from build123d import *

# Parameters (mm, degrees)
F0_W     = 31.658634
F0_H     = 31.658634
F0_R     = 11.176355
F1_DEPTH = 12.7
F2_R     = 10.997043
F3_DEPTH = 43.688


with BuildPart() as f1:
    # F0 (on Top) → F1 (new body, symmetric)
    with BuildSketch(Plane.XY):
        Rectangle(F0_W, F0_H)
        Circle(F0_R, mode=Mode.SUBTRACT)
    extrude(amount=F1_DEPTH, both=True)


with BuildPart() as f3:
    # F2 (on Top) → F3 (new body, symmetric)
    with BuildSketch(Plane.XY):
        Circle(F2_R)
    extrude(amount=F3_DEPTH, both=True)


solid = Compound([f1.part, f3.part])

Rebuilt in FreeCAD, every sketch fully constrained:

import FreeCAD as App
import Part
import Sketcher

V = App.Vector


def add_polygon(sketch, points):
    """Adds a closed chain of lines whose ends are joined by coincident constraints."""
    first, n = sketch.GeometryCount, len(points)
    for a, b in zip(points, points[1:] + points[:1]):
        sketch.addGeometry(Part.LineSegment(App.Vector(*a, 0), App.Vector(*b, 0)), False)
    for i in range(n):
        sketch.addConstraint(Sketcher.Constraint("Coincident", first + i, 2, first + (i + 1) % n, 1))

doc = App.newDocument("Part")
params = doc.addObject("Spreadsheet::Sheet", "Params")
for row, (alias, value) in enumerate([
    ("pad1_length", "1 in"),
    ("pad2_length", "3.44 in"),
], start=1):
    params.set(f"A{row}", alias)
    params.set(f"B{row}", "=" + value)
    params.setAlias(f"B{row}", alias)

body = doc.addObject("PartDesign::Body", "Body")

# Sketch on XY plane
sketch1 = body.newObject("Sketcher::SketchObject", "Sketch")
sketch1.AttachmentSupport = (doc.getObject("XY_Plane"), [""])
sketch1.MapMode = "FlatFace"
add_polygon(sketch1, [(-16, 16), (-16, -16), (16, -16), (16, 16)])  # lines 0-3
sketch1.addGeometry(Part.Circle(V(0, 0, 0), V(0, 0, 1), 11), False)  # 4
sketch1.addConstraint([
    Sketcher.Constraint("Vertical", 0),
    Sketcher.Constraint("Horizontal", 1),
    Sketcher.Constraint("Vertical", 2),
    Sketcher.Constraint("Horizontal", 3),
    Sketcher.Constraint("Coincident", 4, 3, -1, 1),
    Sketcher.Constraint("Symmetric", 0, 2, 2, 2, -1, 1),
    Sketcher.Constraint("Equal", 3, 0),
    Sketcher.Constraint("Diameter", 4, 22.35271),
    Sketcher.Constraint("DistanceX", 1, 1, 1, 2, 31.658634),
])
pad1 = body.newObject("PartDesign::Pad", "Pad")
pad1.Profile = sketch1
pad1.setExpression("Length", "Params.pad1_length")
pad1.Midplane = True
body2 = doc.addObject("PartDesign::Body", "Body001")

# Sketch on XY plane
sketch2 = body2.newObject("Sketcher::SketchObject", "Sketch001")
sketch2.AttachmentSupport = (doc.getObject("XY_Plane001"), [""])
sketch2.MapMode = "FlatFace"
sketch2.addGeometry(Part.Circle(V(0, 0, 0), V(0, 0, 1), 11), False)
sketch2.addConstraint([
    Sketcher.Constraint("Coincident", 0, 3, -1, 1),
    Sketcher.Constraint("Diameter", 0, 21.994086),
])
pad2 = body2.newObject("PartDesign::Pad", "Pad001")
pad2.Profile = sketch2
pad2.setExpression("Length", "Params.pad2_length")
pad2.Midplane = True

doc.recompute()
